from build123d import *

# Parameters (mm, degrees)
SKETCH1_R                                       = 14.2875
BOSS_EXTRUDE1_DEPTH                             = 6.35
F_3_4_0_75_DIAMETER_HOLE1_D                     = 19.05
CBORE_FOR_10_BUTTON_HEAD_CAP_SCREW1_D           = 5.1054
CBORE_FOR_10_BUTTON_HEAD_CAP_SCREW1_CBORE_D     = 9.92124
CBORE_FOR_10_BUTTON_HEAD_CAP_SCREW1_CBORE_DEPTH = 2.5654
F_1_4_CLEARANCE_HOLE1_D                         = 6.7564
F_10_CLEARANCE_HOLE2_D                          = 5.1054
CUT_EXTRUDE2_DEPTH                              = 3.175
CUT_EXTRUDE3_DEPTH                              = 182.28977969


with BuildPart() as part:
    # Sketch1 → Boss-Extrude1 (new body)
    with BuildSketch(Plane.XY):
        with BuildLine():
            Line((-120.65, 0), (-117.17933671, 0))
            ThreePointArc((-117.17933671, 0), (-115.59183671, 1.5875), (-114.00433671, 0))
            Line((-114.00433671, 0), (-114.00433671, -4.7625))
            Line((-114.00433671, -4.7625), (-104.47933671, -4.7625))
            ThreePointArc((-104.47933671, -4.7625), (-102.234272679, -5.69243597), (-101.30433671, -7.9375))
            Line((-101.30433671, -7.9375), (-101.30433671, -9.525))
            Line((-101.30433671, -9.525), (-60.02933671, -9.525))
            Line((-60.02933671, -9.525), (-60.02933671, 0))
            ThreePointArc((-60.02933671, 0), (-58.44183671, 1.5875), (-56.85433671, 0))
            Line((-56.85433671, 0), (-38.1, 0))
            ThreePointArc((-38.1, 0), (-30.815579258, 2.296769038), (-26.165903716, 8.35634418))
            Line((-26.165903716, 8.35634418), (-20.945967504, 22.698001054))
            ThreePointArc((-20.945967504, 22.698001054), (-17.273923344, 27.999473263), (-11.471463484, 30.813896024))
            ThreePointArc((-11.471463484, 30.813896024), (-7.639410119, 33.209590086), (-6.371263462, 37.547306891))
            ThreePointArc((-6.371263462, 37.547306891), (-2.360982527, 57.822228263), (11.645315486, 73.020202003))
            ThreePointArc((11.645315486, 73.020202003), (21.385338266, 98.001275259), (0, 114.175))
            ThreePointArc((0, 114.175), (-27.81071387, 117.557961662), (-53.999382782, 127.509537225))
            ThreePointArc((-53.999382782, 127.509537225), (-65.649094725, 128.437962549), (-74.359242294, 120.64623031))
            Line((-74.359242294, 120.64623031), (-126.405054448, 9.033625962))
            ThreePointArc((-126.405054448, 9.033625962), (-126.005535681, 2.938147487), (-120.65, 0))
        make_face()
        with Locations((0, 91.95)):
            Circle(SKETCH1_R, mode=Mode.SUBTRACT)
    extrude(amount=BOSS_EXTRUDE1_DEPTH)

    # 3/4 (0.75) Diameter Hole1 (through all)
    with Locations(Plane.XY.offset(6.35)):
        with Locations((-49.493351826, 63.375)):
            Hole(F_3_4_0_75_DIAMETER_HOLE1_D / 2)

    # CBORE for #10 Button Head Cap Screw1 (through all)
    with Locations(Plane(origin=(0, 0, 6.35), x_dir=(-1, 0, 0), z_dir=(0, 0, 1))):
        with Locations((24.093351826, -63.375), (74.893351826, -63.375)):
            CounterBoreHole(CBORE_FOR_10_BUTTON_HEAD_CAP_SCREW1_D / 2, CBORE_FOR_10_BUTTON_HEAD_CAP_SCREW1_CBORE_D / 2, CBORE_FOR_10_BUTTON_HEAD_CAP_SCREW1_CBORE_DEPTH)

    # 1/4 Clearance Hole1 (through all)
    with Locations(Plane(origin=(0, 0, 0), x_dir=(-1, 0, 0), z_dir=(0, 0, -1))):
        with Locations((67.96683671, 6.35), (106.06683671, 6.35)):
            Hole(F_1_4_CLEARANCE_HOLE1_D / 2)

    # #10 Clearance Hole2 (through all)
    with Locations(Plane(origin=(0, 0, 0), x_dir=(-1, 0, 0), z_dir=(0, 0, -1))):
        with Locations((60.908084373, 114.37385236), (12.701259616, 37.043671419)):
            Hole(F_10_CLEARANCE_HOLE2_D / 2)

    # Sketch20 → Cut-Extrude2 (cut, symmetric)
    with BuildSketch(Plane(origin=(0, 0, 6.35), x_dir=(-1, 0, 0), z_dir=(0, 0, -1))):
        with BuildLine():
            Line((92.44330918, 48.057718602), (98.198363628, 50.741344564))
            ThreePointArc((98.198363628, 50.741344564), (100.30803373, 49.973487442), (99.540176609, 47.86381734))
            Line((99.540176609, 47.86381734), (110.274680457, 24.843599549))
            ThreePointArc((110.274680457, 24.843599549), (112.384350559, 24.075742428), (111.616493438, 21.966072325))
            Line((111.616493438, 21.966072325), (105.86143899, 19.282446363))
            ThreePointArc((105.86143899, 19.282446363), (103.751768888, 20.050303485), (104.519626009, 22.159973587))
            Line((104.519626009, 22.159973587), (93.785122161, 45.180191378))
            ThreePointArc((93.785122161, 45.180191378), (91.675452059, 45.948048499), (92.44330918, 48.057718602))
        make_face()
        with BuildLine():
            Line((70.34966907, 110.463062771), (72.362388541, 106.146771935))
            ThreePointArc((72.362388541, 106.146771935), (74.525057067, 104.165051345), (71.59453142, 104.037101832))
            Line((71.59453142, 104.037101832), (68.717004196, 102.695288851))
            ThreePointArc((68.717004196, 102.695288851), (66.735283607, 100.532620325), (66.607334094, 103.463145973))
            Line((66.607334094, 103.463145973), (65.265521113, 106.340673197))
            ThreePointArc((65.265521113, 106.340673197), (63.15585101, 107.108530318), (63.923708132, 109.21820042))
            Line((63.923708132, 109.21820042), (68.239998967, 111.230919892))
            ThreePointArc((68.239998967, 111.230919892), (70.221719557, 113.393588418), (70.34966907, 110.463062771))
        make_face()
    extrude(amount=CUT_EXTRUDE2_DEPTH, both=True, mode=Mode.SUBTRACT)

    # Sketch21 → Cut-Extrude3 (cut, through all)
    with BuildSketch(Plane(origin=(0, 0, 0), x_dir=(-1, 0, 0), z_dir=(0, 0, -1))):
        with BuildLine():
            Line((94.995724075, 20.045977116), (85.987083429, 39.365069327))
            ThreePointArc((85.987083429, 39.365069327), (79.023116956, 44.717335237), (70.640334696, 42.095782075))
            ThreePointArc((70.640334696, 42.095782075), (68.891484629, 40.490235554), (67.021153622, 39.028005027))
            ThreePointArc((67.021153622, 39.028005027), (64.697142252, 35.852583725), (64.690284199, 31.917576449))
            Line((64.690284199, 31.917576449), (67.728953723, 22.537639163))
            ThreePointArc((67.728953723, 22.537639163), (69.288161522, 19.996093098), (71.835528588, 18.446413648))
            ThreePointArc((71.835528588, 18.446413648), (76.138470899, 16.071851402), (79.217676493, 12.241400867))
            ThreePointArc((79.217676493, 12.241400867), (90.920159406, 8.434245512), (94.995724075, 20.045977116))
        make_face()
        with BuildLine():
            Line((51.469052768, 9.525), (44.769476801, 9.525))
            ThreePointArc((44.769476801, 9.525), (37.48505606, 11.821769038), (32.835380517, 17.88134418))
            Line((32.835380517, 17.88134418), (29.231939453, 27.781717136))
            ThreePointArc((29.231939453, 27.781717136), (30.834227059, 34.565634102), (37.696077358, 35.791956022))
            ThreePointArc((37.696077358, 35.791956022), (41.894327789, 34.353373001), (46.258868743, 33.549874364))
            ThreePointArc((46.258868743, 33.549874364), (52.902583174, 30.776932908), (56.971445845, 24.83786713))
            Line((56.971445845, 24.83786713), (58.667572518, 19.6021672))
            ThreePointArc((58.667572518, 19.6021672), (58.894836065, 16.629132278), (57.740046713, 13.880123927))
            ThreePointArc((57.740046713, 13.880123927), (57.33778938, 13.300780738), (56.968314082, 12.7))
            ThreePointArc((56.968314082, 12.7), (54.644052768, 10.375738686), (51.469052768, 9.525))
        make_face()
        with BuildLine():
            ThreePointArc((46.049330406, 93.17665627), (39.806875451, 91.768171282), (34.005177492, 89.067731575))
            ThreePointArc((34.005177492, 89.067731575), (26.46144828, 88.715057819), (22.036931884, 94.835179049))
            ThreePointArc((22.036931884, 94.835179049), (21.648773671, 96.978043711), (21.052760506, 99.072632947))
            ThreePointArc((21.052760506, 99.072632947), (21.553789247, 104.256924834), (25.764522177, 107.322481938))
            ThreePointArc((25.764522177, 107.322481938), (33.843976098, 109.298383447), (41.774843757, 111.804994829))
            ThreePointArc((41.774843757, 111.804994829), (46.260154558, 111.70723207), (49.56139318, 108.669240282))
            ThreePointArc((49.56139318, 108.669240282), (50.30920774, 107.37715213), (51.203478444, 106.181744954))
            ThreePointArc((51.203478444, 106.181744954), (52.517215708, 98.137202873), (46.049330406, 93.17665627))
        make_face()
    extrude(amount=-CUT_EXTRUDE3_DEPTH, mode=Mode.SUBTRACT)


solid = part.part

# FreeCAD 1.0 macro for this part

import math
import FreeCAD as App
import Part
import Sketcher

V = App.Vector
Q = App.Units.Quantity

doc = App.newDocument("Part")
params = doc.addObject("Spreadsheet::Sheet", "Params")
for row, (alias, value) in enumerate([
    ("sketch1_radius", "0.5 in"),
    ("sketch1_radius2", "1.5 in"),
    ("sketch1_radius3", "0.25 in"),
    ("sketch1_diameter", "1.125 in"),
    ("sketch1_radius4", "0.0625 in"),
    ("pad1_length", "0.25 in"),
    ("sketch2_diameter", "0.75 in"),
    ("hole_diameter", "0.75 in"),
    ("sketch3_diameter", "0.201 in"),
    ("hole2_diameter", "0.201 in"),
    ("hole2_cbore_diameter", "0.3906 in"),
    ("hole2_cbore_depth", "0.101 in"),
    ("sketch4_diameter", "0.266 in"),
    ("hole3_diameter", "0.266 in"),
    ("sketch5_diameter", "0.201 in"),
    ("hole4_diameter", "0.201 in"),
    ("sketch6_length", "1 in"),
    ("sketch6_radius", "0.0625 in"),
    ("sketch6_length2", "0.25 in"),
    ("sketch6_length3", "0.1875 in"),
    ("sketch6_length4", "0.125 in"),
    ("pocket1_length", "0.25 in"),
    ("sketch7_radius", "0.5 in"),
    ("sketch7_radius2", "0.25 in"),
    ("sketch7_radius3", "0.375 in"),
    ("sketch7_radius4", "0.3125 in"),
    ("sketch7_radius5", "0.875 in"),
], start=1):
    params.set(f"A{row}", alias)
    params.set(f"B{row}", "=" + value)
    params.setAlias(f"B{row}", alias)

body = doc.addObject("PartDesign::Body", "Body")

# Sketch on XY plane
sketch1 = doc.addObject("Sketcher::SketchObject", "Sketch")
body.addObject(sketch1)
sketch1.AttachmentSupport = (doc.XY_Plane, [""])
sketch1.MapMode = "FlatFace"
sketch1.addGeometry([
    Part.LineSegment(V(-120.65, 0, 0), V(-117.179337, 0, 0)),  # 0
    Part.ArcOfCircle(Part.Circle(V(-115.591837, 0, 0), V(0, 0, 1), 1.5875), math.radians(0), math.radians(180)),  # 1
    Part.LineSegment(V(-114.004337, 0, 0), V(-114.004337, -4.7625, 0)),  # 2
    Part.LineSegment(V(-114.004337, -4.7625, 0), V(-104.479337, -4.7625, 0)),  # 3
    Part.ArcOfCircle(Part.Circle(V(-104.479337, -7.9375, 0), V(0, 0, 1), 3.175), math.radians(0), math.radians(90)),  # 4
    Part.LineSegment(V(-101.304337, -7.9375, 0), V(-101.304337, -9.525, 0)),  # 5
    Part.LineSegment(V(-101.304337, -9.525, 0), V(-60.029337, -9.525, 0)),  # 6
    Part.LineSegment(V(-60.029337, -9.525, 0), V(-60.029337, 0, 0)),  # 7
    Part.ArcOfCircle(Part.Circle(V(-58.441837, 0, 0), V(0, 0, 1), 1.5875), math.radians(0), math.radians(180)),  # 8
    Part.LineSegment(V(-56.854337, 0, 0), V(-38.1, 0, 0)),  # 9
    Part.ArcOfCircle(Part.Circle(V(-38.1, 12.7, 0), V(0, 0, 1), 12.7), math.radians(-90), math.radians(-20)),  # 10
    Part.LineSegment(V(-26.165904, 8.356344, 0), V(-20.945968, 22.698001, 0)),  # 11
    Part.ArcOfCircle(Part.Circle(V(-9.011871, 18.354345, 0), V(0, 0, 1), 12.7), math.radians(101.166962), math.radians(160)),  # 12
    Part.ArcOfCircle(Part.Circle(V(-12.70126, 37.043671, 0), V(0, 0, 1), 6.35), math.radians(-78.833038), math.radians(4.549059)),  # 13
    Part.ArcOfCircle(Part.Circle(V(31.608713, 40.56912, 0), V(0, 0, 1), 38.1), math.radians(121.599179), math.radians(184.549059)),  # 14
    Part.ArcOfCircle(Part.Circle(V(0, 91.95, 0), V(0, 0, 1), 22.225), math.radians(-58.400821), math.radians(90)),  # 15
    Part.ArcOfCircle(Part.Circle(V(0, 230.179897, 0), V(0, 0, 1), 116.004897), math.radians(-117.742086), math.radians(-90)),  # 16
    Part.ArcOfCircle(Part.Circle(V(-60.908084, 114.373852, 0), V(0, 0, 1), 14.841711), math.radians(62.257914), math.radians(155)),  # 17
    Part.LineSegment(V(-74.359242, 120.64623, 0), V(-126.405054, 9.033626, 0)),  # 18
    Part.ArcOfCircle(Part.Circle(V(-120.65, 6.35, 0), V(0, 0, 1), 6.35), math.radians(155), math.radians(270)),  # 19
    Part.Circle(V(0, 91.95, 0), V(0, 0, 1), 14.2875),  # 20
], False)
sketch1.addConstraint([
    Sketcher.Constraint("Coincident", 0, 2, 1, 2),
    Sketcher.Constraint("Tangent", 1, 1, 2, 1),
    Sketcher.Constraint("Coincident", 2, 2, 3, 1),
    Sketcher.Constraint("Tangent", 3, 2, 4, 2),
    Sketcher.Constraint("Tangent", 4, 1, 5, 1),
    Sketcher.Constraint("Coincident", 5, 2, 6, 1),
    Sketcher.Constraint("Coincident", 6, 2, 7, 1),
    Sketcher.Constraint("Tangent", 7, 2, 8, 2),
    Sketcher.Constraint("Coincident", 8, 1, 9, 1),
    Sketcher.Constraint("Tangent", 9, 2, 10, 1),
    Sketcher.Constraint("Tangent", 10, 2, 11, 1),
    Sketcher.Constraint("Tangent", 11, 2, 12, 2),
    Sketcher.Constraint("Tangent", 12, 1, 13, 1),
    Sketcher.Constraint("Tangent", 13, 2, 14, 2),
    Sketcher.Constraint("Tangent", 14, 1, 15, 1),
    Sketcher.Constraint("Tangent", 15, 2, 16, 2),
    Sketcher.Constraint("Tangent", 16, 1, 17, 1),
    Sketcher.Constraint("Tangent", 17, 2, 18, 1),
    Sketcher.Constraint("Tangent", 18, 2, 19, 1),
    Sketcher.Constraint("Tangent", 19, 2, 0, 1),
    Sketcher.Constraint("Horizontal", 0),
    Sketcher.Constraint("Vertical", 2),
    Sketcher.Constraint("Horizontal", 3),
    Sketcher.Constraint("Vertical", 5),
    Sketcher.Constraint("Horizontal", 6),
    Sketcher.Constraint("Vertical", 7),
    Sketcher.Constraint("Horizontal", 9),
    Sketcher.Constraint("Coincident", 20, 3, 15, 3),
    Sketcher.Constraint("Equal", 1, 8),
    Sketcher.Constraint("Equal", 10, 12),
    Sketcher.Constraint("Equal", 13, 19),
    Sketcher.Constraint("PointOnObject", 1, 3, -1),
    Sketcher.Constraint("PointOnObject", 8, 3, -1),
    Sketcher.Constraint("PointOnObject", 15, 3, -2),
    Sketcher.Constraint("PointOnObject", 16, 3, -2),
    Sketcher.Constraint("PointOnObject", 0, 2, -1),
    Sketcher.Constraint("PointOnObject", 8, 1, -1),
    Sketcher.Constraint("Equal", 3, 7),
    Sketcher.Constraint("Radius", 10, Q("0.5 in")),
    Sketcher.Constraint("Radius", 14, Q("1.5 in")),
    Sketcher.Constraint("Radius", 13, Q("0.25 in")),
    Sketcher.Constraint("Diameter", 20, Q("1.125 in")),
    Sketcher.Constraint("Angle", 11, Q("70 deg")),
    Sketcher.Constraint("Angle", 18, Q("-115 deg")),
    Sketcher.Constraint("Radius", 1, Q("0.0625 in")),
    Sketcher.Constraint("Radius", 4, Q("0.125 in")),
    Sketcher.Constraint("Radius", 15, Q("0.875 in")),
    Sketcher.Constraint("DistanceX", 10, 3, -1, 1, Q("1.5 in")),
    Sketcher.Constraint("DistanceX", 0, 2, 4, 3, Q("0.5 in")),
    Sketcher.Constraint("DistanceX", 6, 1, 6, 2, Q("1.625 in")),
    Sketcher.Constraint("DistanceY", 2, 2, 2, 1, Q("0.1875 in")),
    Sketcher.Constraint("DistanceX", 19, 3, -1, 1, Q("4.75 in")),
    Sketcher.Constraint("Radius", 17, Q("14.841711 mm")),
    Sketcher.Constraint("Radius", 16, Q("116.004897 mm")),
    Sketcher.Constraint("DistanceY", -1, 1, 15, 3, Q("91.95 mm")),
    Sketcher.Constraint("DistanceY", -1, 1, 11, 2, Q("22.698001 mm")),
    Sketcher.Constraint("DistanceX", 12, 1, 13, 2, Q("5.1002 mm")),
    Sketcher.Constraint("DistanceX", 0, 1, 0, 2, Q("3.470663 mm")),
])
sketch1.setExpression("Constraints[38]", "Params.sketch1_radius")
sketch1.setExpression("Constraints[39]", "Params.sketch1_radius2")
sketch1.setExpression("Constraints[40]", "Params.sketch1_radius3")
sketch1.setExpression("Constraints[41]", "Params.sketch1_diameter")
sketch1.setExpression("Constraints[44]", "Params.sketch1_radius4")
pad1 = doc.addObject("PartDesign::Pad", "Pad")
body.addObject(pad1)
pad1.Profile = sketch1
pad1.setExpression("Length", "Params.pad1_length")

# Sketch on XY plane
sketch2 = doc.addObject("Sketcher::SketchObject", "Sketch001")
body.addObject(sketch2)
sketch2.AttachmentSupport = (doc.XY_Plane, [""])
sketch2.MapMode = "FlatFace"
sketch2.AttachmentOffset = App.Placement(V(0, 0, 0.25 * 25.4), App.Rotation())
sketch2.addGeometry(Part.Circle(V(-49.493352, 63.375, 0), V(0, 0, 1), 9.525), False)
sketch2.addConstraint([
    Sketcher.Constraint("Diameter", 0, Q("0.75 in")),
    Sketcher.Constraint("DistanceY", -1, 1, 0, 3, Q("63.375 mm")),
    Sketcher.Constraint("DistanceX", 0, 3, -1, 1, Q("49.493352 mm")),
])
sketch2.setExpression("Constraints[0]", "Params.sketch2_diameter")
doc.recompute()
hole = doc.addObject("PartDesign::Hole", "Hole")
body.addObject(hole)
hole.Profile = sketch2
hole.ThreadType = "None"
hole.setExpression("Diameter", "Params.hole_diameter")
hole.DepthType = "ThroughAll"

# Sketch on XY plane
sketch3 = doc.addObject("Sketcher::SketchObject", "Sketch002")
body.addObject(sketch3)
sketch3.AttachmentSupport = (doc.XY_Plane, [""])
sketch3.MapMode = "FlatFace"
sketch3.AttachmentOffset = App.Placement(V(0, 0, 0.25 * 25.4), App.Rotation())
sketch3.addGeometry([
    Part.Circle(V(-24.093352, 63.375, 0), V(0, 0, 1), 2.5527),
    Part.Circle(V(-74.893352, 63.375, 0), V(0, 0, 1), 2.5527),
], False)
sketch3.addConstraint([
    Sketcher.Constraint("Equal", 0, 1),
    Sketcher.Constraint("Horizontal", 0, 3, 1, 3),
    Sketcher.Constraint("Diameter", 0, Q("0.201 in")),
    Sketcher.Constraint("DistanceX", 1, 3, 0, 3, Q("2 in")),
    Sketcher.Constraint("DistanceY", -1, 1, 0, 3, Q("63.375 mm")),
    Sketcher.Constraint("DistanceX", 0, 3, -1, 1, Q("24.093352 mm")),
])
sketch3.setExpression("Constraints[2]", "Params.sketch3_diameter")
doc.recompute()
hole2 = doc.addObject("PartDesign::Hole", "Hole001")
body.addObject(hole2)
hole2.Profile = sketch3
hole2.ThreadType = "None"
hole2.setExpression("Diameter", "Params.hole2_diameter")
hole2.DepthType = "ThroughAll"
hole2.HoleCutType = "Counterbore"
hole2.setExpression("HoleCutDiameter", "Params.hole2_cbore_diameter")
hole2.setExpression("HoleCutDepth", "Params.hole2_cbore_depth")

# Sketch on XY plane
sketch4 = doc.addObject("Sketcher::SketchObject", "Sketch003")
body.addObject(sketch4)
sketch4.AttachmentSupport = (doc.XY_Plane, [""])
sketch4.MapMode = "FlatFace"
sketch4.addGeometry([
    Part.Circle(V(-67.966837, 6.35, 0), V(0, 0, 1), 3.3782),
    Part.Circle(V(-106.066837, 6.35, 0), V(0, 0, 1), 3.3782),
], False)
sketch4.addConstraint([
    Sketcher.Constraint("Equal", 0, 1),
    Sketcher.Constraint("Horizontal", 0, 3, 1, 3),
    Sketcher.Constraint("Diameter", 0, Q("0.266 in")),
    Sketcher.Constraint("DistanceX", 1, 3, 0, 3, Q("1.5 in")),
    Sketcher.Constraint("DistanceY", -1, 1, 0, 3, Q("0.25 in")),
    Sketcher.Constraint("DistanceX", 0, 3, -1, 1, Q("67.966837 mm")),
])
sketch4.setExpression("Constraints[2]", "Params.sketch4_diameter")
doc.recompute()
hole3 = doc.addObject("PartDesign::Hole", "Hole002")
body.addObject(hole3)
hole3.Profile = sketch4
hole3.ThreadType = "None"
hole3.setExpression("Diameter", "Params.hole3_diameter")
hole3.DepthType = "ThroughAll"
hole3.Reversed = True

# Sketch on XY plane
sketch5 = doc.addObject("Sketcher::SketchObject", "Sketch004")
body.addObject(sketch5)
sketch5.AttachmentSupport = (doc.XY_Plane, [""])
sketch5.MapMode = "FlatFace"
sketch5.addGeometry([
    Part.Circle(V(-60.908084, 114.373852, 0), V(0, 0, 1), 2.5527),
    Part.Circle(V(-12.70126, 37.043671, 0), V(0, 0, 1), 2.5527),
], False)
sketch5.addConstraint([
    Sketcher.Constraint("Equal", 0, 1),
    Sketcher.Constraint("Diameter", 0, Q("0.201 in")),
    Sketcher.Constraint("DistanceX", 1, 3, -1, 1, Q("12.70126 mm")),
    Sketcher.Constraint("DistanceY", -1, 1, 1, 3, Q("37.043671 mm")),
    Sketcher.Constraint("DistanceY", 1, 3, 0, 3, Q("77.330181 mm")),
    Sketcher.Constraint("DistanceX", 0, 3, -1, 1, Q("60.908084 mm")),
])
sketch5.setExpression("Constraints[1]", "Params.sketch5_diameter")
doc.recompute()
hole4 = doc.addObject("PartDesign::Hole", "Hole003")
body.addObject(hole4)
hole4.Profile = sketch5
hole4.ThreadType = "None"
hole4.setExpression("Diameter", "Params.hole4_diameter")
hole4.DepthType = "ThroughAll"
hole4.Reversed = True

# Sketch on XY plane
sketch6 = doc.addObject("Sketcher::SketchObject", "Sketch005")
body.addObject(sketch6)
sketch6.AttachmentSupport = (doc.XY_Plane, [""])
sketch6.MapMode = "FlatFace"
sketch6.AttachmentOffset = App.Placement(V(0, 0, 0.25 * 25.4), App.Rotation())
sketch6.addGeometry([
    Part.LineSegment(V(-98.198364, 50.741345, 0), V(-92.443309, 48.057719, 0)),  # 0
    Part.ArcOfCircle(Part.Circle(V(-93.114216, 46.618955, 0), V(0, 0, 1), 1.5875), math.radians(-115), math.radians(65)),  # 1
    Part.LineSegment(V(-93.785122, 45.180191, 0), V(-104.519626, 22.159974, 0)),  # 2
    Part.ArcOfCircle(Part.Circle(V(-105.190533, 20.72121, 0), V(0, 0, 1), 1.5875), math.radians(-115), math.radians(65)),  # 3
    Part.LineSegment(V(-105.861439, 19.282446, 0), V(-111.616493, 21.966072, 0)),  # 4
    Part.ArcOfCircle(Part.Circle(V(-110.945587, 23.404836, 0), V(0, 0, 1), 1.5875), math.radians(65), math.radians(245)),  # 5
    Part.LineSegment(V(-110.27468, 24.8436, 0), V(-99.540177, 47.863817, 0)),  # 6
    Part.ArcOfCircle(Part.Circle(V(-98.86927, 49.302581, 0), V(0, 0, 1), 1.5875), math.radians(65), math.radians(245)),  # 7
    Part.LineSegment(V(-72.362389, 106.146772, 0), V(-70.349669, 110.463063, 0)),  # 8
    Part.ArcOfCircle(Part.Circle(V(-69.678763, 111.901826, 0), V(0, 0, 1), 1.5875), math.radians(-25), math.radians(245)),  # 9
    Part.LineSegment(V(-68.239999, 111.23092, 0), V(-63.923708, 109.2182, 0)),  # 10
    Part.ArcOfCircle(Part.Circle(V(-64.594615, 107.779437, 0), V(0, 0, 1), 1.5875), math.radians(-115), math.radians(65)),  # 11
    Part.LineSegment(V(-65.265521, 106.340673, 0), V(-66.607334, 103.463146, 0)),  # 12
    Part.ArcOfCircle(Part.Circle(V(-67.278241, 102.024382, 0), V(0, 0, 1), 1.5875), math.radians(155), math.radians(425)),  # 13
    Part.LineSegment(V(-68.717004, 102.695289, 0), V(-71.594531, 104.037102, 0)),  # 14
    Part.ArcOfCircle(Part.Circle(V(-73.033295, 104.708008, 0), V(0, 0, 1), 1.5875), math.radians(65), math.radians(335)),  # 15
], False)
sketch6.addConstraint([
    Sketcher.Constraint("Tangent", 0, 2, 1, 2),
    Sketcher.Constraint("Coincident", 1, 1, 2, 1),
    Sketcher.Constraint("Coincident", 2, 2, 3, 2),
    Sketcher.Constraint("Tangent", 3, 1, 4, 1),
    Sketcher.Constraint("Tangent", 4, 2, 5, 2),
    Sketcher.Constraint("Coincident", 5, 1, 6, 1),
    Sketcher.Constraint("Coincident", 6, 2, 7, 2),
    Sketcher.Constraint("Tangent", 7, 1, 0, 1),
    Sketcher.Constraint("Coincident", 8, 2, 9, 2),
    Sketcher.Constraint("Coincident", 9, 1, 10, 1),
    Sketcher.Constraint("Tangent", 10, 2, 11, 2),
    Sketcher.Constraint("Coincident", 11, 1, 12, 1),
    Sketcher.Constraint("Coincident", 12, 2, 13, 2),
    Sketcher.Constraint("Coincident", 13, 1, 14, 1),
    Sketcher.Constraint("Coincident", 14, 2, 15, 2),
    Sketcher.Constraint("Coincident", 15, 1, 8, 1),
    Sketcher.Constraint("Equal", 1, 3),
    Sketcher.Constraint("Equal", 3, 5),
    Sketcher.Constraint("Equal", 5, 7),
    Sketcher.Constraint("Equal", 7, 9),
    Sketcher.Constraint("Equal", 9, 11),
    Sketcher.Constraint("Equal", 11, 13),
    Sketcher.Constraint("Equal", 13, 15),
    Sketcher.Constraint("Perpendicular", 0, 2),
    Sketcher.Constraint("Perpendicular", 2, 4),
    Sketcher.Constraint("Perpendicular", 4, 6),
    Sketcher.Constraint("Parallel", 6, 8),
    Sketcher.Constraint("Perpendicular", 8, 10),
    Sketcher.Constraint("Perpendicular", 10, 12),
    Sketcher.Constraint("Perpendicular", 12, 14),
    Sketcher.Constraint("Equal", 0, 4),
    Sketcher.Constraint("Equal", 8, 10),
    Sketcher.Constraint("Equal", 12, 14),
    Sketcher.Constraint("Distance", 2, Q("1 in")),
    Sketcher.Constraint("Angle", 0, Q("-25 deg")),
    Sketcher.Constraint("Radius", 1, Q("0.0625 in")),
    Sketcher.Constraint("Distance", 0, Q("0.25 in")),
    Sketcher.Constraint("Distance", 8, Q("0.1875 in")),
    Sketcher.Constraint("Distance", 12, Q("0.125 in")),
    Sketcher.Constraint("DistanceY", -1, 1, 5, 1, Q("24.8436 mm")),
    Sketcher.Constraint("DistanceX", 9, 1, -1, 1, Q("68.239999 mm")),
    Sketcher.Constraint("DistanceY", -1, 1, 10, 2, Q("109.2182 mm")),
    Sketcher.Constraint("DistanceY", -1, 1, 14, 2, Q("104.037102 mm")),
    Sketcher.Constraint("DistanceX", 1, 3, 11, 3, Q("28.519601 mm")),
    Sketcher.Constraint("DistanceY", 5, 3, 11, 3, Q("84.374601 mm")),
    Sketcher.Constraint("DistanceY", 7, 3, 13, 3, Q("52.721801 mm")),
    Sketcher.Constraint("DistanceY", 4, 2, 2, 2, Q("0.193901 mm")),
    Sketcher.Constraint("DistanceY", 6, 2, 0, 2, Q("0.193901 mm")),
    Sketcher.Constraint("DistanceY", -1, 1, 15, 3, Q("104.708008 mm")),
    Sketcher.Constraint("DistanceX", 8, 2, -1, 1, Q("70.349669 mm")),
    Sketcher.Constraint("DistanceX", 11, 1, -1, 1, Q("65.265521 mm")),
])
sketch6.setExpression("Constraints[33]", "Params.sketch6_length")
sketch6.setExpression("Constraints[35]", "Params.sketch6_radius")
sketch6.setExpression("Constraints[36]", "Params.sketch6_length2")
sketch6.setExpression("Constraints[37]", "Params.sketch6_length3")
sketch6.setExpression("Constraints[38]", "Params.sketch6_length4")
pocket1 = doc.addObject("PartDesign::Pocket", "Pocket")
body.addObject(pocket1)
pocket1.Profile = sketch6
pocket1.setExpression("Length", "Params.pocket1_length")
pocket1.Midplane = True

# Sketch on XY plane
sketch7 = doc.addObject("Sketcher::SketchObject", "Sketch006")
body.addObject(sketch7)
sketch7.AttachmentSupport = (doc.XY_Plane, [""])
sketch7.MapMode = "FlatFace"
sketch7.addGeometry([
    Part.LineSegment(V(-94.995724, 20.045977, 0), V(-85.987083, 39.365069, 0)),  # 0
    Part.ArcOfCircle(Part.Circle(V(-77.354502, 35.33963, 0), V(0, 0, 1), 9.525), math.radians(45.17858), math.radians(155)),  # 1
    Part.ArcOfCircle(Part.Circle(V(-49.493352, 63.375, 0), V(0, 0, 1), 30), math.radians(-134.82142), math.radians(-125.750734)),  # 2
    Part.ArcOfCircle(Part.Circle(V(-70.731205, 33.874558, 0), V(0, 0, 1), 6.35), math.radians(-17.949946), math.radians(54.249266)),  # 3
    Part.LineSegment(V(-64.690284, 31.917576, 0), V(-67.728954, 22.537639, 0)),  # 4
    Part.ArcOfCircle(Part.Circle(V(-73.769875, 24.49462, 0), V(0, 0, 1), 6.35), math.radians(-72.264612), math.radians(-17.949946)),  # 5
    Part.ArcOfCircle(Part.Circle(V(-67.966837, 6.35, 0), V(0, 0, 1), 12.7), math.radians(107.735388), math.radians(152.361602)),  # 6
    Part.ArcOfCircle(Part.Circle(V(-87.016837, 16.325361, 0), V(0, 0, 1), 8.803728), math.radians(155), math.radians(332.361602)),  # 7
    Part.LineSegment(V(-44.769477, 9.525, 0), V(-51.469053, 9.525, 0)),  # 8
    Part.ArcOfCircle(Part.Circle(V(-51.469053, 15.875, 0), V(0, 0, 1), 6.35), math.radians(-150), math.radians(-90)),  # 9
    Part.ArcOfCircle(Part.Circle(V(-67.966836, 6.35, 0), V(0, 0, 1), 12.7), math.radians(30), math.radians(36.364719)),  # 10
    Part.ArcOfCircle(Part.Circle(V(-52.626652, 17.645186, 0), V(0, 0, 1), 6.35), math.radians(162.050054), math.radians(216.364719)),  # 11
    Part.LineSegment(V(-58.667573, 19.602167, 0), V(-56.971446, 24.837867, 0)),  # 12
    Part.ArcOfCircle(Part.Circle(V(-44.889604, 20.923905, 0), V(0, 0, 1), 12.7), math.radians(96.189439), math.radians(162.050054)),  # 13
    Part.ArcOfCircle(Part.Circle(V(-49.493352, 63.375, 0), V(0, 0, 1), 30), math.radians(-83.810561), math.radians(-66.843593)),  # 14
    Part.ArcOfCircle(Part.Circle(V(-35.198988, 29.953545, 0), V(0, 0, 1), 6.35), math.radians(-20), math.radians(113.156407)),  # 15
    Part.LineSegment(V(-29.231939, 27.781717, 0), V(-32.835381, 17.881344, 0)),  # 16
    Part.ArcOfCircle(Part.Circle(V(-44.769477, 22.225, 0), V(0, 0, 1), 12.7), math.radians(-90), math.radians(-20)),  # 17
    Part.ArcOfCircle(Part.Circle(V(-49.493352, 63.375, 0), V(0, 0, 1), 30), math.radians(58.917453), math.radians(83.407869)),  # 18
    Part.ArcOfCircle(Part.Circle(V(-45.1381, 101.061678, 0), V(0, 0, 1), 7.9375), math.radians(139.830739), math.radians(263.407869)),  # 19
    Part.ArcOfCircle(Part.Circle(V(-60.908084, 114.373852, 0), V(0, 0, 1), 12.7), math.radians(-40.169261), math.radians(-26.691217)),  # 20
    Part.ArcOfCircle(Part.Circle(V(-43.888048, 105.816934, 0), V(0, 0, 1), 6.35), math.radians(70.561916), math.radians(153.308783)),  # 21
    Part.ArcOfCircle(Part.Circle(V(0, 230.179897, 0), V(0, 0, 1), 125.529897), math.radians(-109.438084), math.radians(-101.843906)),  # 22
    Part.ArcOfCircle(Part.Circle(V(-27.067835, 101.107671, 0), V(0, 0, 1), 6.35), math.radians(-18.69186), math.radians(78.156094)),  # 23
    Part.ArcOfCircle(Part.Circle(V(0, 91.95, 0), V(0, 0, 1), 22.225), math.radians(161.30814), math.radians(172.540992)),  # 24
    Part.ArcOfCircle(Part.Circle(V(-29.907265, 95.8656, 0), V(0, 0, 1), 7.9375), math.radians(-121.082547), math.radians(-7.459008)),  # 25
], False)
sketch7.addConstraint([
    Sketcher.Constraint("Tangent", 0, 2, 1, 2),
    Sketcher.Constraint("Tangent", 1, 1, 2, 1),
    Sketcher.Constraint("Tangent", 2, 2, 3, 2),
    Sketcher.Constraint("Tangent", 3, 1, 4, 1),
    Sketcher.Constraint("Tangent", 4, 2, 5, 2),
    Sketcher.Constraint("Tangent", 5, 1, 6, 1),
    Sketcher.Constraint("Tangent", 6, 2, 7, 2),
    Sketcher.Constraint("Tangent", 7, 1, 0, 1),
    Sketcher.Constraint("Tangent", 8, 2, 9, 2),
    Sketcher.Constraint("Tangent", 9, 1, 10, 1),
    Sketcher.Constraint("Tangent", 10, 2, 11, 2),
    Sketcher.Constraint("Tangent", 11, 1, 12, 1),
    Sketcher.Constraint("Tangent", 12, 2, 13, 2),
    Sketcher.Constraint("Tangent", 13, 1, 14, 1),
    Sketcher.Constraint("Tangent", 14, 2, 15, 2),
    Sketcher.Constraint("Tangent", 15, 1, 16, 1),
    Sketcher.Constraint("Tangent", 16, 2, 17, 2),
    Sketcher.Constraint("Tangent", 17, 1, 8, 1),
    Sketcher.Constraint("Tangent", 18, 2, 19, 2),
    Sketcher.Constraint("Tangent", 19, 1, 20, 1),
    Sketcher.Constraint("Tangent", 20, 2, 21, 2),
    Sketcher.Constraint("Tangent", 21, 1, 22, 1),
    Sketcher.Constraint("Tangent", 22, 2, 23, 2),
    Sketcher.Constraint("Tangent", 23, 1, 24, 1),
    Sketcher.Constraint("Tangent", 24, 2, 25, 2),
    Sketcher.Constraint("Tangent", 25, 1, 18, 1),
    Sketcher.Constraint("Horizontal", 8),
    Sketcher.Constraint("Coincident", 10, 3, 6, 3),
    Sketcher.Constraint("Coincident", 14, 3, 2, 3),
    Sketcher.Constraint("Coincident", 18, 3, 2, 3),
    Sketcher.Constraint("Equal", 3, 5),
    Sketcher.Constraint("Equal", 5, 9),
    Sketcher.Constraint("Equal", 6, 10),
    Sketcher.Constraint("Equal", 9, 11),
    Sketcher.Constraint("Equal", 10, 13),
    Sketcher.Constraint("Equal", 2, 14),
    Sketcher.Constraint("Equal", 11, 15),
    Sketcher.Constraint("Equal", 13, 17),
    Sketcher.Constraint("Equal", 14, 18),
    Sketcher.Constraint("Equal", 17, 20),
    Sketcher.Constraint("Equal", 15, 21),
    Sketcher.Constraint("Equal", 21, 23),
    Sketcher.Constraint("Equal", 19, 25),
    Sketcher.Constraint("PointOnObject", 22, 3, -2),
    Sketcher.Constraint("PointOnObject", 24, 3, -2),
    Sketcher.Constraint("Parallel", 4, 12),
    Sketcher.Constraint("Radius", 6, Q("0.5 in")),
    Sketcher.Constraint("Radius", 3, Q("0.25 in")),
    Sketcher.Constraint("Angle", 0, Q("65 deg")),
    Sketcher.Constraint("Angle", 16, Q("-110 deg")),
    Sketcher.Constraint("Radius", 1, Q("0.375 in")),
    Sketcher.Constraint("Radius", 19, Q("0.3125 in")),
    Sketcher.Constraint("Radius", 24, Q("0.875 in")),
    Sketcher.Constraint("DistanceY", -1, 1, 9, 1, Q("0.5 in")),
    Sketcher.Constraint("DistanceY", -1, 1, 6, 3, Q("0.25 in")),
    Sketcher.Constraint("Radius", 2, Q("30 mm")),
    Sketcher.Constraint("DistanceX", 7, 3, 6, 3, Q("0.75 in")),
    Sketcher.Constraint("Radius", 7, Q("8.803728 mm")),
    Sketcher.Constraint("DistanceY", 2, 3, 24, 3, Q("1.125 in")),
    Sketcher.Constraint("Radius", 22, Q("125.529897 mm")),
    Sketcher.Constraint("DistanceX", 11, 1, 9, 1, Q("0.0668999 in")),
    Sketcher.Constraint("DistanceX", 11, 3, 13, 1, Q("0.2507001 in")),
    Sketcher.Constraint("DistanceX", 1, 3, -1, 1, Q("77.354502 mm")),
    Sketcher.Constraint("DistanceY", -1, 1, 2, 3, Q("63.375 mm")),
    Sketcher.Constraint("DistanceX", 19, 3, -1, 1, Q("45.1381 mm")),
    Sketcher.Constraint("DistanceY", -1, 1, 25, 3, Q("95.8656 mm")),
    Sketcher.Constraint("DistanceX", 3, 3, 13, 3, Q("25.841601 mm")),
    Sketcher.Constraint("DistanceY", 16, 2, 15, 3, Q("12.072201 mm")),
    Sketcher.Constraint("DistanceY", 23, 1, 21, 3, Q("6.744301 mm")),
    Sketcher.Constraint("DistanceY", -1, 1, 23, 3, Q("101.107671 mm")),
])
sketch7.setExpression("Constraints[46]", "Params.sketch7_radius")
sketch7.setExpression("Constraints[47]", "Params.sketch7_radius2")
sketch7.setExpression("Constraints[50]", "Params.sketch7_radius3")
sketch7.setExpression("Constraints[51]", "Params.sketch7_radius4")
sketch7.setExpression("Constraints[52]", "Params.sketch7_radius5")
pocket2 = doc.addObject("PartDesign::Pocket", "Pocket001")
body.addObject(pocket2)
pocket2.Profile = sketch7
pocket2.Type = "ThroughAll"
pocket2.Reversed = True

doc.recompute()
